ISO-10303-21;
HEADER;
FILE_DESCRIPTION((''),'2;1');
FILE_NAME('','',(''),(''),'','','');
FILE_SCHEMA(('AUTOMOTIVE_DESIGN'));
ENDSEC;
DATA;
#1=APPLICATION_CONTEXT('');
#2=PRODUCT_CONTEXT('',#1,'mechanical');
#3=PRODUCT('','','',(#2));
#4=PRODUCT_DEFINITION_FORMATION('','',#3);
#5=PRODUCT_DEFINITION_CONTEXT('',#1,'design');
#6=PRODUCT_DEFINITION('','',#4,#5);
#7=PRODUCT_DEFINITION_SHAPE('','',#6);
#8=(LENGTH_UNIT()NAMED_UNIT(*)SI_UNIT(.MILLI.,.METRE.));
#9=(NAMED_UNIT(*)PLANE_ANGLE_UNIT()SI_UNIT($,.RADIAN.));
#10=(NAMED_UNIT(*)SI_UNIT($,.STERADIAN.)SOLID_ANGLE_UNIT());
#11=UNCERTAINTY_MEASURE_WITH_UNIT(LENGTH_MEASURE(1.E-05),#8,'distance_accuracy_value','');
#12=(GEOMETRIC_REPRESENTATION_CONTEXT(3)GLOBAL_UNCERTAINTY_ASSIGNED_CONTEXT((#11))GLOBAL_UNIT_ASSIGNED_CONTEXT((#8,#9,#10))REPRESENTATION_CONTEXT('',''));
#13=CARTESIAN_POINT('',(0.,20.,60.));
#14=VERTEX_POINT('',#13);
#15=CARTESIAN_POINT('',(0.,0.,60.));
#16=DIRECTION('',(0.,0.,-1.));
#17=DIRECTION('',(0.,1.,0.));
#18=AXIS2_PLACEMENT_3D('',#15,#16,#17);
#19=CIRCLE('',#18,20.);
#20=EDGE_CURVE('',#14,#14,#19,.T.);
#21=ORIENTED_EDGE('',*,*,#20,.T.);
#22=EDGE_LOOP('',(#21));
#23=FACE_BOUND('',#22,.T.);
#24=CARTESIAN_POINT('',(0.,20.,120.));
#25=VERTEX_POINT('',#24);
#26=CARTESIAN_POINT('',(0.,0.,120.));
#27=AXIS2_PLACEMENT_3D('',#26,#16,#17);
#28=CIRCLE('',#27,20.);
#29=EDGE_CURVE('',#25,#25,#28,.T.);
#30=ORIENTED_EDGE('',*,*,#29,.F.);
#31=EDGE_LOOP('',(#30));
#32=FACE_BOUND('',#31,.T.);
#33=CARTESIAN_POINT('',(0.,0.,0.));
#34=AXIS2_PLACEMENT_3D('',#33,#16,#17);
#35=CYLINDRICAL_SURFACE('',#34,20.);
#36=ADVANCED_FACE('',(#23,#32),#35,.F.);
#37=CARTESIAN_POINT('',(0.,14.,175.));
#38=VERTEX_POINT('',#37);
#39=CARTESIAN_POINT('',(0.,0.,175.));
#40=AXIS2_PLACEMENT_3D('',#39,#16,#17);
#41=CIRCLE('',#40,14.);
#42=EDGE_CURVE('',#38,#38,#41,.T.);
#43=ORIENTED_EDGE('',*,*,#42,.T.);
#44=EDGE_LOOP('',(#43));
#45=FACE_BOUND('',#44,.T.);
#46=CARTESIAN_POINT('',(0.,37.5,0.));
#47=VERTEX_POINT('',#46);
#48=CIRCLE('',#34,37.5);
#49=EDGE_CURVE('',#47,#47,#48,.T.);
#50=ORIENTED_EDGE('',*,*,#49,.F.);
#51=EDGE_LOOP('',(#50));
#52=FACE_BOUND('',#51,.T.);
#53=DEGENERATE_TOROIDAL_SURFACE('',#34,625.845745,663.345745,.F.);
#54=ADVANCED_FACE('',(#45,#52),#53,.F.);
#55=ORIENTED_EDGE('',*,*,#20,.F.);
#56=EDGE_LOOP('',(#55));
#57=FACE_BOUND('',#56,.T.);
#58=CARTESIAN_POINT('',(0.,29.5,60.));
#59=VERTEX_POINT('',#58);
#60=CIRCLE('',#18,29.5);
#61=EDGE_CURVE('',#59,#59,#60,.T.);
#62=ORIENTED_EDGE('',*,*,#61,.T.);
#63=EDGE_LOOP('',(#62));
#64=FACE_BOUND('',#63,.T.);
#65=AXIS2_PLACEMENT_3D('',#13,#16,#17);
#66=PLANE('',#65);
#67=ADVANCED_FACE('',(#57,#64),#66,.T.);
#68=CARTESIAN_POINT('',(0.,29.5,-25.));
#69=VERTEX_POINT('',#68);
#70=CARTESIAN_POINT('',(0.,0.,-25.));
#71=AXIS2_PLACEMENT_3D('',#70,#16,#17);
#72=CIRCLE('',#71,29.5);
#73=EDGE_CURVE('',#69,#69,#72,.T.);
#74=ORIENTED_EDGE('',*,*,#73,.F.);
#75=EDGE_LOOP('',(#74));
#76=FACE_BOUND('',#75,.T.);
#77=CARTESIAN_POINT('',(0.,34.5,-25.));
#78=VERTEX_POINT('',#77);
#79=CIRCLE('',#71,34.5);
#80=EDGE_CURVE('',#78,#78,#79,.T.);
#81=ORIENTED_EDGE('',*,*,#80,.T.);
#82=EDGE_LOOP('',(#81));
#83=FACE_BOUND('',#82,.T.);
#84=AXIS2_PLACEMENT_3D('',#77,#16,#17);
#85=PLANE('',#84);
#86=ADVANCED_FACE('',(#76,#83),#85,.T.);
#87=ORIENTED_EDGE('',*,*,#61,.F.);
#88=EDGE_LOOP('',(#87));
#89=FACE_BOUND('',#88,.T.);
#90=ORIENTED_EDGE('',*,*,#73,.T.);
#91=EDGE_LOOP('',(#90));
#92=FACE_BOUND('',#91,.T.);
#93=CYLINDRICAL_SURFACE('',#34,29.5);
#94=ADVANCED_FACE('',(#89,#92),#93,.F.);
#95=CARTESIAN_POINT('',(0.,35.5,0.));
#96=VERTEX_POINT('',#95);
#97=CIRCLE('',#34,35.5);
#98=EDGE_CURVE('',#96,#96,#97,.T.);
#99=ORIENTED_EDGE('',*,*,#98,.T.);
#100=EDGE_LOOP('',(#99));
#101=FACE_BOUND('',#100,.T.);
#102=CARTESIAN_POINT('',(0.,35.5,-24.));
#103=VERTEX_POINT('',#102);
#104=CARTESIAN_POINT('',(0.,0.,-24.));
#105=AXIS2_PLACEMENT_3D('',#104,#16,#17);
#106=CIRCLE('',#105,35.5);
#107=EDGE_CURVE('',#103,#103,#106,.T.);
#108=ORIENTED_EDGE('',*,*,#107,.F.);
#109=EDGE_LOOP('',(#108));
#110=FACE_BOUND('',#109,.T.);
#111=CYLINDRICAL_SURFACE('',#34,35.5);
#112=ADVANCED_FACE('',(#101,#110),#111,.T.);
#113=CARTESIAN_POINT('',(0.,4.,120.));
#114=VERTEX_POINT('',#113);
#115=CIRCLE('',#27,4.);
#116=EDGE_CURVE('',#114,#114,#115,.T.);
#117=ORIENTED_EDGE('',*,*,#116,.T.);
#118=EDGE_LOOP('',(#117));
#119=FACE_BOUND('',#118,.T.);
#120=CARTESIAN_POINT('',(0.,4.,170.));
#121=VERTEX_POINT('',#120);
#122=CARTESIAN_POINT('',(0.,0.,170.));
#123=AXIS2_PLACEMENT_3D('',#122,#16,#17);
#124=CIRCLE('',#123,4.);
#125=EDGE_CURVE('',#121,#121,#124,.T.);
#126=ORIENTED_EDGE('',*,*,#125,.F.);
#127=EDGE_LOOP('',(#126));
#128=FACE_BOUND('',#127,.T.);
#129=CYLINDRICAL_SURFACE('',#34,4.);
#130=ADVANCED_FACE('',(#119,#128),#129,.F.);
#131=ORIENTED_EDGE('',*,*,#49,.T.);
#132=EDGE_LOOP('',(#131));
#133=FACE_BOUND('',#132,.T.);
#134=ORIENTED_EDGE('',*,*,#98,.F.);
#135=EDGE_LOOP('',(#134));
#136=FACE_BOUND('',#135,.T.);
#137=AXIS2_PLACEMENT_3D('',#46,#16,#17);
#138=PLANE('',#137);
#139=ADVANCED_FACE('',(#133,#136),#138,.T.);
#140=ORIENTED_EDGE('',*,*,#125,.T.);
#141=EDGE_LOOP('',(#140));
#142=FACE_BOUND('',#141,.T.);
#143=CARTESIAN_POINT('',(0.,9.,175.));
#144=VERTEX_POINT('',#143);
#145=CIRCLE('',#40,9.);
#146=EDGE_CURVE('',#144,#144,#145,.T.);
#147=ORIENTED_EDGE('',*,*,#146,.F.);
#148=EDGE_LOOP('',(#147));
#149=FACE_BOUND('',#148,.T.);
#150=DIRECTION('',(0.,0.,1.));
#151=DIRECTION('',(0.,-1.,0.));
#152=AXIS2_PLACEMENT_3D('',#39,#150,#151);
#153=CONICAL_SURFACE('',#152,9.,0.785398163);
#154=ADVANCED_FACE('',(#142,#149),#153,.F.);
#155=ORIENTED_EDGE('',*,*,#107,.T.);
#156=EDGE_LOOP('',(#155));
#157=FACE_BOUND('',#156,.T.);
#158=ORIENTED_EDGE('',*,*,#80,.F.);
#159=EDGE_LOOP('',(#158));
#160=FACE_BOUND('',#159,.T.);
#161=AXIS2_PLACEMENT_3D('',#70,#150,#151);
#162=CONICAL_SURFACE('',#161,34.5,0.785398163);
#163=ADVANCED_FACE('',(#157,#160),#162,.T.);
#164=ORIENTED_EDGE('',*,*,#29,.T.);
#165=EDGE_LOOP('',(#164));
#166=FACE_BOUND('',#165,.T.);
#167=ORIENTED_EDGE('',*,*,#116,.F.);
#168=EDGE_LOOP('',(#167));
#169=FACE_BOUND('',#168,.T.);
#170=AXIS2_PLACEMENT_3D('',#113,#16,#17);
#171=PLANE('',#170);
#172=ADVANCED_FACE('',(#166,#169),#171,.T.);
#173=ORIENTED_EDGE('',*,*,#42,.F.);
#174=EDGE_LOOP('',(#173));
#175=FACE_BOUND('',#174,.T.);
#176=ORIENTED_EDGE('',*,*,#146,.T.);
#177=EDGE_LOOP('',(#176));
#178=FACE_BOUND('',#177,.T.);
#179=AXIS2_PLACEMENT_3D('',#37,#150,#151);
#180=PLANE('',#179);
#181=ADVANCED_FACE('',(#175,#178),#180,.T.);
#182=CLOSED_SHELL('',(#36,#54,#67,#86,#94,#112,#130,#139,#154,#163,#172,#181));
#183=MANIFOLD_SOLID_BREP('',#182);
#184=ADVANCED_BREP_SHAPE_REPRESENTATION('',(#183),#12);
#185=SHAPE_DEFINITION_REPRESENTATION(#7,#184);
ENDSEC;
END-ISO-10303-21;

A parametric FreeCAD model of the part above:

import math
import FreeCAD as App
import Part
import Sketcher

V = App.Vector
Q = App.Units.Quantity

doc = App.newDocument("Part")
body = doc.addObject("PartDesign::Body", "Body")

# Sketch on YZ plane
sketch1 = doc.addObject("Sketcher::SketchObject", "Sketch")
body.addObject(sketch1)
sketch1.AttachmentSupport = (doc.YZ_Plane, [""])
sketch1.MapMode = "FlatFace"
sketch1.addGeometry([
    Part.LineSegment(V(14, 175, 0), V(9, 175, 0)),  # 0
    Part.LineSegment(V(9, 175, 0), V(4, 170, 0)),  # 1
    Part.LineSegment(V(4, 170, 0), V(4, 120, 0)),  # 2
    Part.LineSegment(V(4, 120, 0), V(20, 120, 0)),  # 3
    Part.LineSegment(V(20, 120, 0), V(20, 60, 0)),  # 4
    Part.LineSegment(V(20, 60, 0), V(29.5, 60, 0)),  # 5
    Part.LineSegment(V(29.5, 60, 0), V(29.5, -25, 0)),  # 6
    Part.LineSegment(V(29.5, -25, 0), V(34.5, -25, 0)),  # 7
    Part.LineSegment(V(34.5, -25, 0), V(35.5, -24, 0)),  # 8
    Part.LineSegment(V(35.5, -24, 0), V(35.5, 0, 0)),  # 9
    Part.LineSegment(V(35.5, 0, 0), V(37.5, 0, 0)),  # 10
    Part.ArcOfCircle(Part.Circle(V(-625.845745, 0, 0), V(0, 0, 1), 663.345745), math.radians(0), math.radians(15.296502)),  # 11
], False)
sketch1.addConstraint([
    Sketcher.Constraint("Coincident", 0, 2, 1, 1),
    Sketcher.Constraint("Coincident", 1, 2, 2, 1),
    Sketcher.Constraint("Coincident", 2, 2, 3, 1),
    Sketcher.Constraint("Coincident", 3, 2, 4, 1),
    Sketcher.Constraint("Coincident", 4, 2, 5, 1),
    Sketcher.Constraint("Coincident", 5, 2, 6, 1),
    Sketcher.Constraint("Coincident", 6, 2, 7, 1),
    Sketcher.Constraint("Coincident", 7, 2, 8, 1),
    Sketcher.Constraint("Coincident", 8, 2, 9, 1),
    Sketcher.Constraint("Coincident", 9, 2, 10, 1),
    Sketcher.Constraint("Coincident", 10, 2, 11, 1),
    Sketcher.Constraint("Coincident", 11, 2, 0, 1),
    Sketcher.Constraint("Horizontal", 0),
    Sketcher.Constraint("Vertical", 2),
    Sketcher.Constraint("Horizontal", 3),
    Sketcher.Constraint("Vertical", 4),
    Sketcher.Constraint("Horizontal", 5),
    Sketcher.Constraint("Vertical", 6),
    Sketcher.Constraint("Horizontal", 7),
    Sketcher.Constraint("Vertical", 9),
    Sketcher.Constraint("Horizontal", 10),
    Sketcher.Constraint("PointOnObject", 11, 3, -1),
    Sketcher.Constraint("PointOnObject", 9, 2, -1),
    Sketcher.Constraint("Parallel", 1, 8),
    Sketcher.Constraint("Equal", 0, 7),
    Sketcher.Constraint("DistanceX", 0, 2, 0, 1, Q("5 mm")),
    Sketcher.Constraint("DistanceX", 3, 1, 3, 2, Q("16 mm")),
    Sketcher.Constraint("DistanceX", 10, 1, 10, 2, Q("2 mm")),
    Sketcher.Constraint("DistanceY", 2, 2, 2, 1, Q("50 mm")),
    Sketcher.Constraint("DistanceY", 4, 2, 4, 1, Q("60 mm")),
    Sketcher.Constraint("DistanceY", 6, 2, 6, 1, Q("85 mm")),
    Sketcher.Constraint("DistanceY", 9, 1, 9, 2, Q("24 mm")),
    Sketcher.Constraint("Angle", 1, Q("-135 deg")),
    Sketcher.Constraint("DistanceX", 5, 1, 5, 2, Q("9.5 mm")),
    Sketcher.Constraint("DistanceX", -1, 1, 0, 2, Q("9 mm")),
    Sketcher.Constraint("DistanceY", -1, 1, 0, 2, Q("175 mm")),
    Sketcher.Constraint("DistanceX", -1, 1, 1, 2, Q("4 mm")),
])
revolution = doc.addObject("PartDesign::Revolution", "Revolution")
body.addObject(revolution)
revolution.Profile = sketch1
revolution.ReferenceAxis = (sketch1, ["V_Axis"])
revolution.Angle = 360

doc.recompute()
